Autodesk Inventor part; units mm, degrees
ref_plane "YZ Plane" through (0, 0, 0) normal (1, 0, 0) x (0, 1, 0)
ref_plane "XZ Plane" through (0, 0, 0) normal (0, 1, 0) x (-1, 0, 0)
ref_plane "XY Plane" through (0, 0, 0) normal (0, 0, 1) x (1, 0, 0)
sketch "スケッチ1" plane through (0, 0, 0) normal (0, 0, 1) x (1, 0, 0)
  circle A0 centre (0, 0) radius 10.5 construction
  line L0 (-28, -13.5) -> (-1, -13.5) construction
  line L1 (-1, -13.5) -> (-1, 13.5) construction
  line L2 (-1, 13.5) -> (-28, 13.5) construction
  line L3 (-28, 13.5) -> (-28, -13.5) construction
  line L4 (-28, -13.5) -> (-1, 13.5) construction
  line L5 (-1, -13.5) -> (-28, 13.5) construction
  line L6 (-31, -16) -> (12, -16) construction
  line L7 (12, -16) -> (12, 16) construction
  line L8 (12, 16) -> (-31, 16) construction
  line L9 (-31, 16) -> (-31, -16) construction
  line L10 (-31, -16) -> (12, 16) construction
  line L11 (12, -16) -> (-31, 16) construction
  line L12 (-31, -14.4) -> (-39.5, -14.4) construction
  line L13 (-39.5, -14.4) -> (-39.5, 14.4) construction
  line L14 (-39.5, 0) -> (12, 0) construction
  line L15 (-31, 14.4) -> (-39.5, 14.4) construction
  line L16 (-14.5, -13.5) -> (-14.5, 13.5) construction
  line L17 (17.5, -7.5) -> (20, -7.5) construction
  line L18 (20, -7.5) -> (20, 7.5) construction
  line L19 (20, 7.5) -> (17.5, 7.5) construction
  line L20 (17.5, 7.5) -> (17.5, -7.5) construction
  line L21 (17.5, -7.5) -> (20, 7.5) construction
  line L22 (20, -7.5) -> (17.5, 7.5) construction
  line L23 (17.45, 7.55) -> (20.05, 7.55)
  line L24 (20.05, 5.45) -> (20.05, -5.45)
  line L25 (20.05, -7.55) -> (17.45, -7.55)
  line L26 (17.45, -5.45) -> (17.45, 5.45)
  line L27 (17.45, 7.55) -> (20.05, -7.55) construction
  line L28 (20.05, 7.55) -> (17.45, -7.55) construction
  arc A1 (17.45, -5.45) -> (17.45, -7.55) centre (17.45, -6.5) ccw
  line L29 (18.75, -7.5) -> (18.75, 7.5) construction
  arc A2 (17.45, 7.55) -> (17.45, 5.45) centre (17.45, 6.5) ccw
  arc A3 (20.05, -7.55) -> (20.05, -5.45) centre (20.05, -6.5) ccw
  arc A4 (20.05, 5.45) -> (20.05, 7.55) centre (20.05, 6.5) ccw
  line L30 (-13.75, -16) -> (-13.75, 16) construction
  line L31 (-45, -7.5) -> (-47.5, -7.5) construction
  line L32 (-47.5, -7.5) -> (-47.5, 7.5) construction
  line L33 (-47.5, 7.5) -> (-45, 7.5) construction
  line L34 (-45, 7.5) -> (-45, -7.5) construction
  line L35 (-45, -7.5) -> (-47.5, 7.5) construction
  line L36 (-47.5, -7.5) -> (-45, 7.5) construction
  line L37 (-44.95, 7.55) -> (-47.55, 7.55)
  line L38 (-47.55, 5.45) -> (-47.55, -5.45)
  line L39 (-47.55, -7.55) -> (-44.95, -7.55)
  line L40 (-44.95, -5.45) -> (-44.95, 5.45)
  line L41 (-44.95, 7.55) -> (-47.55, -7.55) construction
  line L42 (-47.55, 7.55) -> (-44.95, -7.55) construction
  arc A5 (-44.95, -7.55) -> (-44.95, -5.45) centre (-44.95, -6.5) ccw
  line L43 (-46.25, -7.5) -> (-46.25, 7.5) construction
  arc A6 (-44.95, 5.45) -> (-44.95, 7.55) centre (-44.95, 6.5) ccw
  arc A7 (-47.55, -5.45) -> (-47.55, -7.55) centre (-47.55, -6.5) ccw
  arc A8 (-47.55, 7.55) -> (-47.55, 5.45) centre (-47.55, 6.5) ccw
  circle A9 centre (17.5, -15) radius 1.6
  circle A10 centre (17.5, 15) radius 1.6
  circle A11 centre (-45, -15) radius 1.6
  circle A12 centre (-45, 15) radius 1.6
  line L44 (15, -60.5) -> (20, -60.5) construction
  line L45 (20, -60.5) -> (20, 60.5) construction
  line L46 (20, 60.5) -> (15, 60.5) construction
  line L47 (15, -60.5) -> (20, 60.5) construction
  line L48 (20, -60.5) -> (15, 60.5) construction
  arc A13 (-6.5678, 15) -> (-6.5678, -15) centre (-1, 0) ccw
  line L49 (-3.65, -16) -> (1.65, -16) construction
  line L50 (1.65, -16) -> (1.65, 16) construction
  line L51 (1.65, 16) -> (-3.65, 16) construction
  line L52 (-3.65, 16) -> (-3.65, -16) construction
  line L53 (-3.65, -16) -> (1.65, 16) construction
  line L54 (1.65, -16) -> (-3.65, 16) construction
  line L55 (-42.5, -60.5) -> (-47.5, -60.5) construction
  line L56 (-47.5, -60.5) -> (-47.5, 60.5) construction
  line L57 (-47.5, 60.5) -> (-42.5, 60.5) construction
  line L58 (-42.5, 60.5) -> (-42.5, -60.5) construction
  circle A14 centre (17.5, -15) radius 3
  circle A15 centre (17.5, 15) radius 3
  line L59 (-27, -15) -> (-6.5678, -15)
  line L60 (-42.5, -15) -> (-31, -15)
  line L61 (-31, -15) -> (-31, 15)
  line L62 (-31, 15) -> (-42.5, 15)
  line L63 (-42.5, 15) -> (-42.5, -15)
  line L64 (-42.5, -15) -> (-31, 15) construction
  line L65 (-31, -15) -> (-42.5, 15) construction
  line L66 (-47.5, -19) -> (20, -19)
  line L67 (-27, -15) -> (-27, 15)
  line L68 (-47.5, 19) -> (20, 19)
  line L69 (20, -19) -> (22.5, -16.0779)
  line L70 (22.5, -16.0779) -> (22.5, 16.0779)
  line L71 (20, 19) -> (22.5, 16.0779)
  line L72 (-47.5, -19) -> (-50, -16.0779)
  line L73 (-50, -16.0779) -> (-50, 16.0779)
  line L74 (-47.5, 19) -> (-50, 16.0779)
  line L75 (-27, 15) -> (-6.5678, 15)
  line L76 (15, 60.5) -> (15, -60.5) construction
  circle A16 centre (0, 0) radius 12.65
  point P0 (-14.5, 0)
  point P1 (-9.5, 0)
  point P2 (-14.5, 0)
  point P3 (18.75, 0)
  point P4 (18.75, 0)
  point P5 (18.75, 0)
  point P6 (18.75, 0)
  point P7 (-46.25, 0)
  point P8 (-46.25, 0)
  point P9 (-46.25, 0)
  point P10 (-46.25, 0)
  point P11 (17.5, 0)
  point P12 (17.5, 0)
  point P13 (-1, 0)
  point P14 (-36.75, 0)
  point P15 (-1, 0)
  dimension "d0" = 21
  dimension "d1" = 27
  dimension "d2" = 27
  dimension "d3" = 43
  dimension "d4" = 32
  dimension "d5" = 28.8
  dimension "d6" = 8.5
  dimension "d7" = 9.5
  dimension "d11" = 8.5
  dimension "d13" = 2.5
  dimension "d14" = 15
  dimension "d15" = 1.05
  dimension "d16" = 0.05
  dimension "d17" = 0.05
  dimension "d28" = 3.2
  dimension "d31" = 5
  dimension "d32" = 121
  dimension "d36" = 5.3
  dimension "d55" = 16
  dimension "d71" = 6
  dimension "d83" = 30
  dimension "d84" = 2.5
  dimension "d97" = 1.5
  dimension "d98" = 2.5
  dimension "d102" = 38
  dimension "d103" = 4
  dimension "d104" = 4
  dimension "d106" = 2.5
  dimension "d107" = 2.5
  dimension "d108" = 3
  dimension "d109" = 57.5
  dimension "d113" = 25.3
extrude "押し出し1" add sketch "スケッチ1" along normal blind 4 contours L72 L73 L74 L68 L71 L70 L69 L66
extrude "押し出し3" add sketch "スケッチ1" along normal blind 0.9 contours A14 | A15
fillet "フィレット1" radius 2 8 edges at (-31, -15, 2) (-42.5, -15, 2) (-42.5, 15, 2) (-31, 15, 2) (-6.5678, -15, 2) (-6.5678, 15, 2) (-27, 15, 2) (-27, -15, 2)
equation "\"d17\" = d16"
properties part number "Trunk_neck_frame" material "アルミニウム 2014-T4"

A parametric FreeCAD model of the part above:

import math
import FreeCAD as App
import Part
import Sketcher
from FreeCAD import Vector


def edges_at(feature, points):
    """Names of the edges that pass closest to the given points."""
    edges = feature.Shape.Edges
    near = lambda p: min(range(len(edges)), key=lambda i: edges[i].distToShape(Part.Vertex(*p))[0])
    return sorted({f"Edge{near(p) + 1}" for p in points})

doc = App.newDocument("Part")
params = doc.addObject("Spreadsheet::Sheet", "Params")
for row, (alias, value) in enumerate([
    ("sketch1_diameter", "6 mm"),
    ("sketch1_radius", "16 mm"),
    ("sketch1_diameter2", "3.2 mm"),
    ("sketch1_diameter3", "25.3 mm"),
    ("sketch1_height", "30 mm"),
    ("pad1_length", "4 mm"),
    ("sketch2_diameter", "6 mm"),
    ("sketch2_diameter2", "3.2 mm"),
    ("pad2_length", "0.9 mm"),
    ("fillet_radius", "2 mm"),
], start=1):
    params.set(f"A{row}", alias)
    params.set(f"B{row}", "=" + value)
    params.setAlias(f"B{row}", alias)

body = doc.addObject("PartDesign::Body", "Body")

# Sketch on XY plane
sketch1 = body.newObject("Sketcher::SketchObject", "Sketch")
sketch1.AttachmentSupport = (doc.getObject("XY_Plane"), [""])
sketch1.MapMode = "FlatFace"
sketch1.addGeometry(Part.LineSegment(Vector(-50, -16.1, 0), Vector(-47.5, -19, 0)), False)
sketch1.addGeometry(Part.LineSegment(Vector(-47.5, -19, 0), Vector(20, -19, 0)), False)
sketch1.addGeometry(Part.LineSegment(Vector(20, -19, 0), Vector(22.5, -16.1, 0)), False)
sketch1.addGeometry(Part.LineSegment(Vector(22.5, -16.1, 0), Vector(22.5, 16.1, 0)), False)
sketch1.addGeometry(Part.LineSegment(Vector(22.5, 16.1, 0), Vector(20, 19, 0)), False)
sketch1.addGeometry(Part.LineSegment(Vector(20, 19, 0), Vector(-47.5, 19, 0)), False)
sketch1.addGeometry(Part.LineSegment(Vector(-47.5, 19, 0), Vector(-50, 16.1, 0)), False)
sketch1.addGeometry(Part.LineSegment(Vector(-50, 16.1, 0), Vector(-50, -16.1, 0)), False)
sketch1.addGeometry(Part.Circle(Vector(-45, -15, 0), Vector(0, 0, 1), 1.6), False)
sketch1.addGeometry(Part.Circle(Vector(17.5, -15, 0), Vector(0, 0, 1), 3), False)
sketch1.addGeometry(Part.LineSegment(Vector(-47.5, 7.5, 0), Vector(-45, 7.5, 0)), False)
sketch1.addGeometry(Part.ArcOfCircle(Part.Circle(Vector(-45, 6.5, 0), Vector(0, 0, 1), 1), math.radians(-90), math.radians(90)), False)
sketch1.addGeometry(Part.LineSegment(Vector(-45, 5.5, 0), Vector(-45, -5.5, 0)), False)
sketch1.addGeometry(Part.ArcOfCircle(Part.Circle(Vector(-45, -6.5, 0), Vector(0, 0, 1), 1), math.radians(-90), math.radians(90)), False)
sketch1.addGeometry(Part.LineSegment(Vector(-45, -7.5, 0), Vector(-47.5, -7.5, 0)), False)
sketch1.addGeometry(Part.ArcOfCircle(Part.Circle(Vector(-47.5, -6.5, 0), Vector(0, 0, 1), 1), math.radians(90), math.radians(270)), False)
sketch1.addGeometry(Part.LineSegment(Vector(-47.5, -5.5, 0), Vector(-47.5, 5.5, 0)), False)
sketch1.addGeometry(Part.ArcOfCircle(Part.Circle(Vector(-47.5, 6.5, 0), Vector(0, 0, 1), 1), math.radians(90), math.radians(270)), False)
sketch1.addGeometry(Part.LineSegment(Vector(-31, -15, 0), Vector(-42.5, -15, 0)), False)
sketch1.addGeometry(Part.LineSegment(Vector(-42.5, -15, 0), Vector(-42.5, 15, 0)), False)
sketch1.addGeometry(Part.LineSegment(Vector(-42.5, 15, 0), Vector(-31, 15, 0)), False)
sketch1.addGeometry(Part.LineSegment(Vector(-31, 15, 0), Vector(-31, -15, 0)), False)
sketch1.addGeometry(Part.LineSegment(Vector(-27, 15, 0), Vector(-6.6, 15, 0)), False)
sketch1.addGeometry(Part.ArcOfCircle(Part.Circle(Vector(-1, 0, 0), Vector(0, 0, 1), 16), math.radians(110), math.radians(250)), False)
sketch1.addGeometry(Part.LineSegment(Vector(-6.6, -15, 0), Vector(-27, -15, 0)), False)
sketch1.addGeometry(Part.LineSegment(Vector(-27, -15, 0), Vector(-27, 15, 0)), False)
sketch1.addGeometry(Part.Circle(Vector(-45, 15, 0), Vector(0, 0, 1), 1.6), False)
sketch1.addGeometry(Part.Circle(Vector(0, 0, 0), Vector(0, 0, 1), 12.7), False)
sketch1.addGeometry(Part.ArcOfCircle(Part.Circle(Vector(17.4, 6.5, 0), Vector(0, 0, 1), 1), math.radians(90), math.radians(270)), False)
sketch1.addGeometry(Part.LineSegment(Vector(17.4, 7.5, 0), Vector(20.1, 7.5, 0)), False)
sketch1.addGeometry(Part.ArcOfCircle(Part.Circle(Vector(20.1, 6.5, 0), Vector(0, 0, 1), 1), math.radians(-90), math.radians(90)), False)
sketch1.addGeometry(Part.LineSegment(Vector(20.1, 5.5, 0), Vector(20.1, -5.5, 0)), False)
sketch1.addGeometry(Part.ArcOfCircle(Part.Circle(Vector(20.1, -6.5, 0), Vector(0, 0, 1), 1), math.radians(-90), math.radians(90)), False)
sketch1.addGeometry(Part.LineSegment(Vector(20.1, -7.5, 0), Vector(17.4, -7.5, 0)), False)
sketch1.addGeometry(Part.ArcOfCircle(Part.Circle(Vector(17.4, -6.5, 0), Vector(0, 0, 1), 1), math.radians(90), math.radians(270)), False)
sketch1.addGeometry(Part.LineSegment(Vector(17.4, -5.5, 0), Vector(17.4, 5.5, 0)), False)
sketch1.addGeometry(Part.Circle(Vector(17.5, 15, 0), Vector(0, 0, 1), 3), False)
sketch1.addConstraint(Sketcher.Constraint("Coincident", 0, 2, 1, 1))
sketch1.addConstraint(Sketcher.Constraint("Coincident", 1, 2, 2, 1))
sketch1.addConstraint(Sketcher.Constraint("Coincident", 2, 2, 3, 1))
sketch1.addConstraint(Sketcher.Constraint("Coincident", 3, 2, 4, 1))
sketch1.addConstraint(Sketcher.Constraint("Coincident", 4, 2, 5, 1))
sketch1.addConstraint(Sketcher.Constraint("Coincident", 5, 2, 6, 1))
sketch1.addConstraint(Sketcher.Constraint("Coincident", 6, 2, 7, 1))
sketch1.addConstraint(Sketcher.Constraint("Coincident", 7, 2, 0, 1))
sketch1.addConstraint(Sketcher.Constraint("Tangent", 10, 2, 11, 2))
sketch1.addConstraint(Sketcher.Constraint("Coincident", 11, 1, 12, 1))
sketch1.addConstraint(Sketcher.Constraint("Coincident", 12, 2, 13, 2))
sketch1.addConstraint(Sketcher.Constraint("Tangent", 13, 1, 14, 1))
sketch1.addConstraint(Sketcher.Constraint("Tangent", 14, 2, 15, 2))
sketch1.addConstraint(Sketcher.Constraint("Coincident", 15, 1, 16, 1))
sketch1.addConstraint(Sketcher.Constraint("Coincident", 16, 2, 17, 2))
sketch1.addConstraint(Sketcher.Constraint("Tangent", 17, 1, 10, 1))
sketch1.addConstraint(Sketcher.Constraint("Coincident", 18, 2, 19, 1))
sketch1.addConstraint(Sketcher.Constraint("Coincident", 19, 2, 20, 1))
sketch1.addConstraint(Sketcher.Constraint("Coincident", 20, 2, 21, 1))
sketch1.addConstraint(Sketcher.Constraint("Coincident", 21, 2, 18, 1))
sketch1.addConstraint(Sketcher.Constraint("Coincident", 22, 2, 23, 1))
sketch1.addConstraint(Sketcher.Constraint("Coincident", 23, 2, 24, 1))
sketch1.addConstraint(Sketcher.Constraint("Coincident", 24, 2, 25, 1))
sketch1.addConstraint(Sketcher.Constraint("Coincident", 25, 2, 22, 1))
sketch1.addConstraint(Sketcher.Constraint("Tangent", 28, 1, 29, 1))
sketch1.addConstraint(Sketcher.Constraint("Tangent", 29, 2, 30, 2))
sketch1.addConstraint(Sketcher.Constraint("Coincident", 30, 1, 31, 1))
sketch1.addConstraint(Sketcher.Constraint("Coincident", 31, 2, 32, 2))
sketch1.addConstraint(Sketcher.Constraint("Tangent", 32, 1, 33, 1))
sketch1.addConstraint(Sketcher.Constraint("Tangent", 33, 2, 34, 2))
sketch1.addConstraint(Sketcher.Constraint("Coincident", 34, 1, 35, 1))
sketch1.addConstraint(Sketcher.Constraint("Coincident", 35, 2, 28, 2))
sketch1.addConstraint(Sketcher.Constraint("Horizontal", 1))
sketch1.addConstraint(Sketcher.Constraint("Vertical", 3))
sketch1.addConstraint(Sketcher.Constraint("Horizontal", 5))
sketch1.addConstraint(Sketcher.Constraint("Vertical", 7))
sketch1.addConstraint(Sketcher.Constraint("Horizontal", 10))
sketch1.addConstraint(Sketcher.Constraint("Vertical", 12))
sketch1.addConstraint(Sketcher.Constraint("Horizontal", 14))
sketch1.addConstraint(Sketcher.Constraint("Vertical", 16))
sketch1.addConstraint(Sketcher.Constraint("Horizontal", 18))
sketch1.addConstraint(Sketcher.Constraint("Vertical", 19))
sketch1.addConstraint(Sketcher.Constraint("Horizontal", 20))
sketch1.addConstraint(Sketcher.Constraint("Vertical", 21))
sketch1.addConstraint(Sketcher.Constraint("Horizontal", 22))
sketch1.addConstraint(Sketcher.Constraint("Horizontal", 24))
sketch1.addConstraint(Sketcher.Constraint("Vertical", 25))
sketch1.addConstraint(Sketcher.Constraint("Horizontal", 29))
sketch1.addConstraint(Sketcher.Constraint("Vertical", 31))
sketch1.addConstraint(Sketcher.Constraint("Horizontal", 33))
sketch1.addConstraint(Sketcher.Constraint("Vertical", 35))
sketch1.addConstraint(Sketcher.Constraint("Coincident", 27, 3, -1, 1))
sketch1.addConstraint(Sketcher.Constraint("Equal", 11, 13))
sketch1.addConstraint(Sketcher.Constraint("Equal", 13, 15))
sketch1.addConstraint(Sketcher.Constraint("Equal", 15, 17))
sketch1.addConstraint(Sketcher.Constraint("Equal", 8, 26))
sketch1.addConstraint(Sketcher.Constraint("Equal", 17, 28))
sketch1.addConstraint(Sketcher.Constraint("Equal", 28, 30))
sketch1.addConstraint(Sketcher.Constraint("Equal", 30, 32))
sketch1.addConstraint(Sketcher.Constraint("Equal", 32, 34))
sketch1.addConstraint(Sketcher.Constraint("Equal", 9, 36))
sketch1.addConstraint(Sketcher.Constraint("Symmetric", 11, 3, 13, 3, -1))
sketch1.addConstraint(Sketcher.Constraint("Symmetric", 8, 3, 26, 3, -1))
sketch1.addConstraint(Sketcher.Constraint("Symmetric", 30, 3, 32, 3, -1))
sketch1.addConstraint(Sketcher.Constraint("Symmetric", 9, 3, 36, 3, -1))
sketch1.addConstraint(Sketcher.Constraint("Symmetric", 1, 2, 4, 2, -1))
sketch1.addConstraint(Sketcher.Constraint("Symmetric", 22, 2, 23, 2, -1))
sketch1.addConstraint(Sketcher.Constraint("Parallel", 0, 4))
sketch1.addConstraint(Sketcher.Constraint("Parallel", 2, 6))
sketch1.addConstraint(Sketcher.Constraint("Horizontal", 8, 3, 9, 3))
sketch1.addConstraint(Sketcher.Constraint("Horizontal", 17, 3, 28, 3))
sketch1.addConstraint(Sketcher.Constraint("Horizontal", 3, 2, 6, 2))
sketch1.addConstraint(Sketcher.Constraint("Horizontal", 2, 2, 7, 2))
sketch1.addConstraint(Sketcher.Constraint("Horizontal", 9, 3, 18, 2))
sketch1.addConstraint(Sketcher.Constraint("Horizontal", 36, 3, 19, 2))
sketch1.addConstraint(Sketcher.Constraint("Horizontal", 20, 2, 22, 2))
sketch1.addConstraint(Sketcher.Constraint("Vertical", 15, 3, 17, 3))
sketch1.addConstraint(Sketcher.Constraint("Vertical", 28, 3, 34, 3))
sketch1.addConstraint(Sketcher.Constraint("Vertical", 0, 2, 5, 2))
sketch1.addConstraint(Sketcher.Constraint("Vertical", 10, 2, 11, 1))
sketch1.addConstraint(Sketcher.Constraint("Vertical", 14, 2, 15, 1))
sketch1.addConstraint(Sketcher.Constraint("Vertical", 29, 2, 30, 1))
sketch1.addConstraint(Sketcher.Constraint("Vertical", 33, 2, 34, 1))
sketch1.addConstraint(Sketcher.Constraint("Equal", 14, 29))
sketch1.addConstraint(Sketcher.Constraint("Diameter", 9, 6.0))
sketch1.addConstraint(Sketcher.Constraint("Radius", 23, 16.0))
sketch1.addConstraint(Sketcher.Constraint("Diameter", 8, 3.2))
sketch1.addConstraint(Sketcher.Constraint("Diameter", 27, 25.3))
sketch1.addConstraint(Sketcher.Constraint("DistanceY", 19, 1, 19, 2, 30.0))
sketch1.addConstraint(Sketcher.Constraint("Radius", 11, 1.05))
sketch1.addConstraint(Sketcher.Constraint("DistanceX", 24, 2, -1, 1, 27.0))
sketch1.addConstraint(Sketcher.Constraint("DistanceY", 0, 2, 8, 3, 4.0))
sketch1.addConstraint(Sketcher.Constraint("DistanceX", 9, 3, 2, 2, 5.0))
sketch1.addConstraint(Sketcher.Constraint("DistanceX", 6, 2, 26, 3, 5.0))
sketch1.addConstraint(Sketcher.Constraint("DistanceX", 0, 2, 18, 2, 5.0))
sketch1.addConstraint(Sketcher.Constraint("DistanceX", 21, 2, 24, 2, 4.0))
sketch1.addConstraint(Sketcher.Constraint("DistanceY", 8, 3, 13, 3, 8.5))
sketch1.addConstraint(Sketcher.Constraint("DistanceX", 0, 2, 8, 3, 2.5))
sketch1.addConstraint(Sketcher.Constraint("DistanceX", 8, 3, 11, 3, 0.05))
sketch1.addConstraint(Sketcher.Constraint("DistanceX", 28, 3, 9, 3, 0.05))
sketch1.addConstraint(Sketcher.Constraint("DistanceX", 15, 3, 0, 2, 0.05))
sketch1.addConstraint(Sketcher.Constraint("DistanceX", 1, 1, 1, 2, 67.5))
sketch1.addConstraint(Sketcher.Constraint("DistanceX", 18, 2, 18, 1, 11.5))
sketch1.addConstraint(Sketcher.Constraint("DistanceX", 23, 3, -1, 1, 1.0))
sketch1.addConstraint(Sketcher.Constraint("DistanceY", 3, 1, 3, 2, 32.1558))
sketch1.setExpression("Constraints[84]", "Params.sketch1_diameter")
sketch1.setExpression("Constraints[85]", "Params.sketch1_radius")
sketch1.setExpression("Constraints[86]", "Params.sketch1_diameter2")
sketch1.setExpression("Constraints[87]", "Params.sketch1_diameter3")
sketch1.setExpression("Constraints[88]", "Params.sketch1_height")
pad1 = body.newObject("PartDesign::Pad", "Pad")
pad1.Profile = sketch1
pad1.setExpression("Length", "Params.pad1_length")

# Sketch on XY plane
sketch2 = body.newObject("Sketcher::SketchObject", "Sketch001")
sketch2.AttachmentSupport = (doc.getObject("XY_Plane"), [""])
sketch2.MapMode = "FlatFace"
sketch2.addGeometry(Part.Circle(Vector(17.5, -15, 0), Vector(0, 0, 1), 3), False)
sketch2.addGeometry(Part.Circle(Vector(17.5, -15, 0), Vector(0, 0, 1), 1.6), False)
sketch2.addGeometry(Part.Circle(Vector(17.5, 15, 0), Vector(0, 0, 1), 3), False)
sketch2.addGeometry(Part.Circle(Vector(17.5, 15, 0), Vector(0, 0, 1), 1.6), False)
sketch2.addConstraint(Sketcher.Constraint("Coincident", 1, 3, 0, 3))
sketch2.addConstraint(Sketcher.Constraint("Coincident", 3, 3, 2, 3))
sketch2.addConstraint(Sketcher.Constraint("Equal", 0, 2))
sketch2.addConstraint(Sketcher.Constraint("Equal", 1, 3))
sketch2.addConstraint(Sketcher.Constraint("Symmetric", 0, 3, 2, 3, -1))
sketch2.addConstraint(Sketcher.Constraint("Diameter", 0, 6.0))
sketch2.addConstraint(Sketcher.Constraint("Diameter", 1, 3.2))
sketch2.addConstraint(Sketcher.Constraint("DistanceY", 0, 3, -1, 1, 15.0))
sketch2.addConstraint(Sketcher.Constraint("DistanceX", -1, 1, 0, 3, 17.5))
sketch2.setExpression("Constraints[5]", "Params.sketch2_diameter")
sketch2.setExpression("Constraints[6]", "Params.sketch2_diameter2")
pad2 = body.newObject("PartDesign::Pad", "Pad001")
pad2.Profile = sketch2
pad2.setExpression("Length", "Params.pad2_length")
doc.recompute()

fillet = body.newObject("PartDesign::Fillet", "Fillet")
fillet.Base = (pad2, edges_at(pad2, [
    (-31, -15, 2),
    (-42.5, -15, 2),
    (-42.5, 15, 2),
    (-31, 15, 2),
    (-6.568, -15, 2),
    (-6.568, 15, 2),
    (-27, 15, 2),
    (-27, -15, 2),
]))
fillet.setExpression("Radius", "Params.fillet_radius")

doc.recompute()
